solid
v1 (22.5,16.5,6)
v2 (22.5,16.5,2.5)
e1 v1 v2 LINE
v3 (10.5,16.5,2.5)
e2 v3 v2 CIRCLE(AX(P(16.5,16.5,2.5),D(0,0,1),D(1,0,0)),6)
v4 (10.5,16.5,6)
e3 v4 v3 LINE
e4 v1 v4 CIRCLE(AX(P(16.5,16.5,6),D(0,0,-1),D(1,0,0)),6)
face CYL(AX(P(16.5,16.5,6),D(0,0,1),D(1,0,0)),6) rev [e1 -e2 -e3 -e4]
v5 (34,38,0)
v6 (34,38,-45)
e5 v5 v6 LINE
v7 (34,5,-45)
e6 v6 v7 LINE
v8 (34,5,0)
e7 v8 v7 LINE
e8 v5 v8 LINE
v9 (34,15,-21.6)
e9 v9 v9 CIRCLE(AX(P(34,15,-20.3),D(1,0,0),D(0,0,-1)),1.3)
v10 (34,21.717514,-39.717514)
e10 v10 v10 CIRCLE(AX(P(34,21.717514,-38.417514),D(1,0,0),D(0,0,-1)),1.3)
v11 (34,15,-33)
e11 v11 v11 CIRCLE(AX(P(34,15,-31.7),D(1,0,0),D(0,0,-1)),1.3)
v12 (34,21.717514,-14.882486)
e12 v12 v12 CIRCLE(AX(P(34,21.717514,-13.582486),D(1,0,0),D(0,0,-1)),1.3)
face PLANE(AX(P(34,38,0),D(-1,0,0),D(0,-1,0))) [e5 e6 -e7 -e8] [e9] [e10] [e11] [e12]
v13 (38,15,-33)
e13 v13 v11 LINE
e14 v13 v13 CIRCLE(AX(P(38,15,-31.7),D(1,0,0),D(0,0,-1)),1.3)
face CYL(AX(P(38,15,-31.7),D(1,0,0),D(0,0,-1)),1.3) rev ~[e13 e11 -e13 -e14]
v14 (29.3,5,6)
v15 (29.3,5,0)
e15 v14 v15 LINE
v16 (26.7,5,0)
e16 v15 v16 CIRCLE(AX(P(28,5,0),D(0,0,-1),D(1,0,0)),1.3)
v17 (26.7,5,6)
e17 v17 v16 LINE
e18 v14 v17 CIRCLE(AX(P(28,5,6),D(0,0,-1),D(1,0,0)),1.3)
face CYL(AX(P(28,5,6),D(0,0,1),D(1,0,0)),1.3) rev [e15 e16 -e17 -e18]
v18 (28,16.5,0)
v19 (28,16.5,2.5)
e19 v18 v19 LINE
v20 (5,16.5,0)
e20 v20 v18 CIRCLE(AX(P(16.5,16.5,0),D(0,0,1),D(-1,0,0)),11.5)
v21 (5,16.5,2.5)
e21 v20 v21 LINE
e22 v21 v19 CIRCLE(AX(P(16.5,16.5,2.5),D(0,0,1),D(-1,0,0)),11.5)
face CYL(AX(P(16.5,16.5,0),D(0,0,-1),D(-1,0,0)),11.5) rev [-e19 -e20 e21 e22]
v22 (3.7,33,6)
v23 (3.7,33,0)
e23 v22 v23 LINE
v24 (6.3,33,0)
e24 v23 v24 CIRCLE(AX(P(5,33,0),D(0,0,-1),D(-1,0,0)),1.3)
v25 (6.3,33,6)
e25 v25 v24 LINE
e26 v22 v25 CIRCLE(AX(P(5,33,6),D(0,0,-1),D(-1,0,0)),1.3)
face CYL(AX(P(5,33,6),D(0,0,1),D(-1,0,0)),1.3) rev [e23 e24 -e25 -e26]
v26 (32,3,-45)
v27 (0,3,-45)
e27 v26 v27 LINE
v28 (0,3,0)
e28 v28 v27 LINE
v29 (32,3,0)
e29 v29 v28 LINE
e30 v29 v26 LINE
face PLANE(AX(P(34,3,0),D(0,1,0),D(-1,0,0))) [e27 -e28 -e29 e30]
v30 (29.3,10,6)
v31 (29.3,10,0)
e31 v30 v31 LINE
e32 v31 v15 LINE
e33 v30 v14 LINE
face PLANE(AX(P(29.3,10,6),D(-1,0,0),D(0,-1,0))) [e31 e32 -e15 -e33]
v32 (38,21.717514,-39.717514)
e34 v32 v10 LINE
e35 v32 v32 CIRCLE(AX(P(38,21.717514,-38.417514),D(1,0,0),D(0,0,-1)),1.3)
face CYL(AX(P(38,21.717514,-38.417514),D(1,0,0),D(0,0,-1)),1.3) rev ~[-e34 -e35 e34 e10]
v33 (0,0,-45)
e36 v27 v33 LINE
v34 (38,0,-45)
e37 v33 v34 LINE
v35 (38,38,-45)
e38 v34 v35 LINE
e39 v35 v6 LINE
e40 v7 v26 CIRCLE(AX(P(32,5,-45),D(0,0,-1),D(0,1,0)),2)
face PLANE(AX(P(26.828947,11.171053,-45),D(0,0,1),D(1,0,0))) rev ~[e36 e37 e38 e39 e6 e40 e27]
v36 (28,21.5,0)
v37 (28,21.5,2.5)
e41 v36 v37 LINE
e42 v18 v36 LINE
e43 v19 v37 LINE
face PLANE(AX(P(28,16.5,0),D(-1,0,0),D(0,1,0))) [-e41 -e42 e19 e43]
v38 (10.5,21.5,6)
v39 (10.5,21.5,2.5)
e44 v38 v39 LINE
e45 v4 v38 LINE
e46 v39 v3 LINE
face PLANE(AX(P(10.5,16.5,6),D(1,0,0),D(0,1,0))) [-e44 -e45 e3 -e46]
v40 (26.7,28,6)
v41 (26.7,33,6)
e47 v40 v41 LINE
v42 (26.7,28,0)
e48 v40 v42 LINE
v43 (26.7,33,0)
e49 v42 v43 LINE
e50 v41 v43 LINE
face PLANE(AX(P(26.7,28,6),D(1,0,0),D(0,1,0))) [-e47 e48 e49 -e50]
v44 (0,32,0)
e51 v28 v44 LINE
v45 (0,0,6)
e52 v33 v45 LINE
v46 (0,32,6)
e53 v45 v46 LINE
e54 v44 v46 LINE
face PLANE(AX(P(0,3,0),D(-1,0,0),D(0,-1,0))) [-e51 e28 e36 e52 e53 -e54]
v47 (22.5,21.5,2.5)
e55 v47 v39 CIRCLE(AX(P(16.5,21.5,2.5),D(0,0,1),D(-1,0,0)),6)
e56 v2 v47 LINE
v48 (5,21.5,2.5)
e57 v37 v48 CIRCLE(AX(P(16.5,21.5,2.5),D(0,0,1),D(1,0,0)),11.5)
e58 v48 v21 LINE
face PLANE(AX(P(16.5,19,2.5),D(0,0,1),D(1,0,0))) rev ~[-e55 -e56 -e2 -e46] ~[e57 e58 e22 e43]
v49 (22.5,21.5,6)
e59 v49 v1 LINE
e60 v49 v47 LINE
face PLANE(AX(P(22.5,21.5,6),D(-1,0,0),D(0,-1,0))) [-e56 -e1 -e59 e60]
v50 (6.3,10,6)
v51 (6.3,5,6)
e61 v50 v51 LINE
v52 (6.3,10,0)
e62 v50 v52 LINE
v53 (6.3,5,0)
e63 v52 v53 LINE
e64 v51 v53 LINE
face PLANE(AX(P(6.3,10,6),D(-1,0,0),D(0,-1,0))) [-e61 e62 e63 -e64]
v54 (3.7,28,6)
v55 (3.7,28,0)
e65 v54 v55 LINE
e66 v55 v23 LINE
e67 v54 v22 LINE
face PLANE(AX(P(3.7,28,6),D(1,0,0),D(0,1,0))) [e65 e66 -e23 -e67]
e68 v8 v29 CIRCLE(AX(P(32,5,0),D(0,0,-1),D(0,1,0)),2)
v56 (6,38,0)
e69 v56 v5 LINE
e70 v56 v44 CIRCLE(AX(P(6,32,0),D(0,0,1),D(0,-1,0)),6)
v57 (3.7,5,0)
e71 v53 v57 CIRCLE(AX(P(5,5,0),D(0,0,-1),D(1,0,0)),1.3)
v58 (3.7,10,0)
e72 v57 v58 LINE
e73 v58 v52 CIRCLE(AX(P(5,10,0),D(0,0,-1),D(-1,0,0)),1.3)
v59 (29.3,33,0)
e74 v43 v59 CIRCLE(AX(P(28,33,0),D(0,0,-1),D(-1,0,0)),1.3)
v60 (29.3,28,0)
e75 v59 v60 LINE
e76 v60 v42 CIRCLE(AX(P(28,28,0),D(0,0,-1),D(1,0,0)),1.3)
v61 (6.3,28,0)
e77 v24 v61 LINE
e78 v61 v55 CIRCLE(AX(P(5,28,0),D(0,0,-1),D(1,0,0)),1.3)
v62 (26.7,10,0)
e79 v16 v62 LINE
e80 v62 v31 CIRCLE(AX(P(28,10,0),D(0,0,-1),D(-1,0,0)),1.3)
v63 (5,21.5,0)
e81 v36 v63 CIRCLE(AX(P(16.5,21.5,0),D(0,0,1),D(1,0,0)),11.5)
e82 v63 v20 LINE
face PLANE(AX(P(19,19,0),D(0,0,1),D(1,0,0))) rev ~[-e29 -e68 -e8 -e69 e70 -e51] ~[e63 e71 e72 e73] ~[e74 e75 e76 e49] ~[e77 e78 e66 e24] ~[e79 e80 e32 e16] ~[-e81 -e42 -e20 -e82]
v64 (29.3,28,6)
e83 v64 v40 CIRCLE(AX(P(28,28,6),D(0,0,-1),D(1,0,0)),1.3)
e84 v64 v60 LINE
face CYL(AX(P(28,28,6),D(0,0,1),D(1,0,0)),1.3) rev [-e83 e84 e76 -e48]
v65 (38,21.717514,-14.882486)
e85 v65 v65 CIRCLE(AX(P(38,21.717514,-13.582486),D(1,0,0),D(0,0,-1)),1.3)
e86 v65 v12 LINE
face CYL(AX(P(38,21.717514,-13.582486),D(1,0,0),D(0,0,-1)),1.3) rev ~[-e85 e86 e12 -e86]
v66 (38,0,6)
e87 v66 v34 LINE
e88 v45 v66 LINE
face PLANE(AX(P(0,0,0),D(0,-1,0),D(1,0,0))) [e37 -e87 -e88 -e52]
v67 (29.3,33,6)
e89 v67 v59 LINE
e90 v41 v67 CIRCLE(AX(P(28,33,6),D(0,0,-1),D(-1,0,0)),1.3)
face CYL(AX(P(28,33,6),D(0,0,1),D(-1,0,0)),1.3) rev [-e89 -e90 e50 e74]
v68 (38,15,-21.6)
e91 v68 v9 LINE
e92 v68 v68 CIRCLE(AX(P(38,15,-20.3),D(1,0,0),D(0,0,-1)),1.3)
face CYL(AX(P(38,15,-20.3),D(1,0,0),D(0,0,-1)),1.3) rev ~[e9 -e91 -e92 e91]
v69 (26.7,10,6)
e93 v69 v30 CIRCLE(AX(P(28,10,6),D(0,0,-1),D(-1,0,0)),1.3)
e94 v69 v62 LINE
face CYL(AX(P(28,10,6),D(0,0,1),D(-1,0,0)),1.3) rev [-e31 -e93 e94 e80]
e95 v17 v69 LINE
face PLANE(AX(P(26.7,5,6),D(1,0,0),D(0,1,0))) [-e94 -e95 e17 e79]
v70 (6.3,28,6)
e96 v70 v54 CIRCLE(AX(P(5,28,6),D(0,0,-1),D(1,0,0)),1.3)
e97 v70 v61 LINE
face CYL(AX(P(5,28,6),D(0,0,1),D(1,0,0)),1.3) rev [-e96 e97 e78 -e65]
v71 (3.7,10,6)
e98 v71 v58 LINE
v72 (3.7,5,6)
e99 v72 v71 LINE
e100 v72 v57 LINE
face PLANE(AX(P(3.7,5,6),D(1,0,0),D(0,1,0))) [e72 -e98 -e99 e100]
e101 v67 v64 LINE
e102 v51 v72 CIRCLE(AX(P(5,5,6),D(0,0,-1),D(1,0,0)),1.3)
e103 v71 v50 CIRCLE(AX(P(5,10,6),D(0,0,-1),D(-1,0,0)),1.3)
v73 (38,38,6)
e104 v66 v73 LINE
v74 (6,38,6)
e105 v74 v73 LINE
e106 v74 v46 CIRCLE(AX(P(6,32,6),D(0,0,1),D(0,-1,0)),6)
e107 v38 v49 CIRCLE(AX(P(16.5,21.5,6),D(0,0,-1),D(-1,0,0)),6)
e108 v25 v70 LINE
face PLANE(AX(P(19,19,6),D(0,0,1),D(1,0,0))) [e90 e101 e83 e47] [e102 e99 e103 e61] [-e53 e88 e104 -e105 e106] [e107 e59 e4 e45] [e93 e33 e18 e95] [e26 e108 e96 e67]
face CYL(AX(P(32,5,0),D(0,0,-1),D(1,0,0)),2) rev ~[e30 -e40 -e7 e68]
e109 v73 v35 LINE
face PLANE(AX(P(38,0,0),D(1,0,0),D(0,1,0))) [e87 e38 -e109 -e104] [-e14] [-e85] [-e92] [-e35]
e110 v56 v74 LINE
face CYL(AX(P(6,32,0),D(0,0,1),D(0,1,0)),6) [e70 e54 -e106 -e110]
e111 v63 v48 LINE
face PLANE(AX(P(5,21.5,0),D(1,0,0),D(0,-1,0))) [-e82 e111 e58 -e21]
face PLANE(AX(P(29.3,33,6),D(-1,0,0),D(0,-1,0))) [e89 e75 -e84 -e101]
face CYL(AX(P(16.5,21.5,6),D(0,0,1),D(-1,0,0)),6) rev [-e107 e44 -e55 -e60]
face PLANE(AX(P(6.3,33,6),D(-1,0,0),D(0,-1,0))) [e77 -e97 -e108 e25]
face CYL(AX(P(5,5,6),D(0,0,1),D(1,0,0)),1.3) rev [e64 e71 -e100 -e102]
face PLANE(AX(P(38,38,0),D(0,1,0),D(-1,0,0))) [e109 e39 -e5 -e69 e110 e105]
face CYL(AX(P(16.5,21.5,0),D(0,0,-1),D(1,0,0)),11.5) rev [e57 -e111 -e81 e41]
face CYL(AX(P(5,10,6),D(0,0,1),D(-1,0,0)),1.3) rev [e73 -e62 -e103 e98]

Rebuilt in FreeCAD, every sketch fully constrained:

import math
import FreeCAD as App
import Part
import Sketcher


def edges_at(feature, points):
    """Names of the edges that pass closest to the given points."""
    edges = feature.Shape.Edges
    near = lambda p: min(range(len(edges)), key=lambda i: edges[i].distToShape(Part.Vertex(*p))[0])
    return sorted({f"Edge{near(p) + 1}" for p in points})


def add_polygon(sketch, points):
    """Adds a closed chain of lines whose ends are joined by coincident constraints."""
    first, n = sketch.GeometryCount, len(points)
    for a, b in zip(points, points[1:] + points[:1]):
        sketch.addGeometry(Part.LineSegment(App.Vector(*a, 0), App.Vector(*b, 0)), False)
    for i in range(n):
        sketch.addConstraint(Sketcher.Constraint("Coincident", first + i, 2, first + (i + 1) % n, 1))

doc = App.newDocument("Part")
body = doc.addObject("PartDesign::Body", "Body")

# Sketch on XY plane
sketch1 = doc.addObject("Sketcher::SketchObject", "Sketch")
body.addObject(sketch1)
sketch1.AttachmentSupport = (doc.XY_Plane, [""])
sketch1.MapMode = "FlatFace"
add_polygon(sketch1, [(0, 38), (0, 0), (38, 0), (38, 38)])  # lines 0-3
sketch1.addConstraint(Sketcher.Constraint("Vertical", 0))
sketch1.addConstraint(Sketcher.Constraint("Horizontal", 1))
sketch1.addConstraint(Sketcher.Constraint("Vertical", 2))
sketch1.addConstraint(Sketcher.Constraint("Horizontal", 3))
sketch1.addConstraint(Sketcher.Constraint("Coincident", 0, 2, -1, 1))
sketch1.addConstraint(Sketcher.Constraint("Equal", 3, 0))
sketch1.addConstraint(Sketcher.Constraint("DistanceX", 1, 1, 1, 2, 38.0))
pad1 = doc.addObject("PartDesign::Pad", "Pad")
body.addObject(pad1)
pad1.Profile = sketch1
pad1.Length = 6

# Sketch on XY plane
sketch2 = doc.addObject("Sketcher::SketchObject", "Sketch001")
body.addObject(sketch2)
sketch2.AttachmentSupport = (doc.XY_Plane, [""])
sketch2.MapMode = "FlatFace"
add_polygon(sketch2, [(34, 3), (34, 38), (38, 38), (38, 0), (0, 0), (0, 3)])  # lines 0-5
sketch2.addConstraint(Sketcher.Constraint("Vertical", 0))
sketch2.addConstraint(Sketcher.Constraint("Horizontal", 1))
sketch2.addConstraint(Sketcher.Constraint("Vertical", 2))
sketch2.addConstraint(Sketcher.Constraint("Horizontal", 3))
sketch2.addConstraint(Sketcher.Constraint("Vertical", 4))
sketch2.addConstraint(Sketcher.Constraint("Horizontal", 5))
sketch2.addConstraint(Sketcher.Constraint("Coincident", 3, 2, -1, 1))
sketch2.addConstraint(Sketcher.Constraint("Equal", 3, 2))
sketch2.addConstraint(Sketcher.Constraint("DistanceX", 1, 1, 1, 2, 4.0))
sketch2.addConstraint(Sketcher.Constraint("DistanceX", 3, 2, 3, 1, 38.0))
sketch2.addConstraint(Sketcher.Constraint("DistanceY", 0, 1, 0, 2, 35.0))
pad2 = doc.addObject("PartDesign::Pad", "Pad001")
body.addObject(pad2)
pad2.Profile = sketch2
pad2.Length = 45
pad2.Reversed = True

# Sketch on XY plane
sketch3 = doc.addObject("Sketcher::SketchObject", "Sketch002")
body.addObject(sketch3)
sketch3.AttachmentSupport = (doc.XY_Plane, [""])
sketch3.MapMode = "FlatFace"
sketch3.AttachmentOffset = App.Placement(App.Vector(0, 0, 6), App.Rotation())
sketch3.addGeometry(Part.LineSegment(App.Vector(6.3, 28, 0), App.Vector(6.3, 33, 0)), False)
sketch3.addGeometry(Part.ArcOfCircle(Part.Circle(App.Vector(5, 33, 0), App.Vector(0, 0, 1), 1.3), math.radians(0), math.radians(180)), False)
sketch3.addGeometry(Part.LineSegment(App.Vector(3.7, 33, 0), App.Vector(3.7, 28, 0)), False)
sketch3.addGeometry(Part.ArcOfCircle(Part.Circle(App.Vector(5, 28, 0), App.Vector(0, 0, 1), 1.3), math.radians(180), math.radians(360)), False)
sketch3.addGeometry(Part.LineSegment(App.Vector(29.3, 28, 0), App.Vector(29.3, 33, 0)), False)
sketch3.addGeometry(Part.ArcOfCircle(Part.Circle(App.Vector(28, 33, 0), App.Vector(0, 0, 1), 1.3), math.radians(0), math.radians(180)), False)
sketch3.addGeometry(Part.LineSegment(App.Vector(26.7, 33, 0), App.Vector(26.7, 28, 0)), False)
sketch3.addGeometry(Part.ArcOfCircle(Part.Circle(App.Vector(28, 28, 0), App.Vector(0, 0, 1), 1.3), math.radians(180), math.radians(360)), False)
sketch3.addGeometry(Part.LineSegment(App.Vector(6.3, 5, 0), App.Vector(6.3, 10, 0)), False)
sketch3.addGeometry(Part.ArcOfCircle(Part.Circle(App.Vector(5, 10, 0), App.Vector(0, 0, 1), 1.3), math.radians(0), math.radians(180)), False)
sketch3.addGeometry(Part.LineSegment(App.Vector(3.7, 10, 0), App.Vector(3.7, 5, 0)), False)
sketch3.addGeometry(Part.ArcOfCircle(Part.Circle(App.Vector(5, 5, 0), App.Vector(0, 0, 1), 1.3), math.radians(180), math.radians(360)), False)
sketch3.addGeometry(Part.LineSegment(App.Vector(29.3, 5, 0), App.Vector(29.3, 10, 0)), False)
sketch3.addGeometry(Part.ArcOfCircle(Part.Circle(App.Vector(28, 10, 0), App.Vector(0, 0, 1), 1.3), math.radians(0), math.radians(180)), False)
sketch3.addGeometry(Part.LineSegment(App.Vector(26.7, 10, 0), App.Vector(26.7, 5, 0)), False)
sketch3.addGeometry(Part.ArcOfCircle(Part.Circle(App.Vector(28, 5, 0), App.Vector(0, 0, 1), 1.3), math.radians(180), math.radians(360)), False)
sketch3.addGeometry(Part.LineSegment(App.Vector(22.5, 16.5, 0), App.Vector(22.5, 21.5, 0)), False)
sketch3.addGeometry(Part.ArcOfCircle(Part.Circle(App.Vector(16.5, 21.5, 0), App.Vector(0, 0, 1), 6), math.radians(0), math.radians(180)), False)
sketch3.addGeometry(Part.LineSegment(App.Vector(10.5, 21.5, 0), App.Vector(10.5, 16.5, 0)), False)
sketch3.addGeometry(Part.ArcOfCircle(Part.Circle(App.Vector(16.5, 16.5, 0), App.Vector(0, 0, 1), 6), math.radians(180), math.radians(360)), False)
sketch3.addConstraint(Sketcher.Constraint("Tangent", 0, 2, 1, 1))
sketch3.addConstraint(Sketcher.Constraint("Tangent", 1, 2, 2, 1))
sketch3.addConstraint(Sketcher.Constraint("Tangent", 2, 2, 3, 1))
sketch3.addConstraint(Sketcher.Constraint("Tangent", 3, 2, 0, 1))
sketch3.addConstraint(Sketcher.Constraint("Tangent", 4, 2, 5, 1))
sketch3.addConstraint(Sketcher.Constraint("Tangent", 5, 2, 6, 1))
sketch3.addConstraint(Sketcher.Constraint("Tangent", 6, 2, 7, 1))
sketch3.addConstraint(Sketcher.Constraint("Tangent", 7, 2, 4, 1))
sketch3.addConstraint(Sketcher.Constraint("Tangent", 8, 2, 9, 1))
sketch3.addConstraint(Sketcher.Constraint("Tangent", 9, 2, 10, 1))
sketch3.addConstraint(Sketcher.Constraint("Tangent", 10, 2, 11, 1))
sketch3.addConstraint(Sketcher.Constraint("Tangent", 11, 2, 8, 1))
sketch3.addConstraint(Sketcher.Constraint("Tangent", 12, 2, 13, 1))
sketch3.addConstraint(Sketcher.Constraint("Tangent", 13, 2, 14, 1))
sketch3.addConstraint(Sketcher.Constraint("Tangent", 14, 2, 15, 1))
sketch3.addConstraint(Sketcher.Constraint("Tangent", 15, 2, 12, 1))
sketch3.addConstraint(Sketcher.Constraint("Tangent", 16, 2, 17, 1))
sketch3.addConstraint(Sketcher.Constraint("Tangent", 17, 2, 18, 1))
sketch3.addConstraint(Sketcher.Constraint("Tangent", 18, 2, 19, 1))
sketch3.addConstraint(Sketcher.Constraint("Tangent", 19, 2, 16, 1))
sketch3.addConstraint(Sketcher.Constraint("Vertical", 0))
sketch3.addConstraint(Sketcher.Constraint("Vertical", 2))
sketch3.addConstraint(Sketcher.Constraint("Vertical", 4))
sketch3.addConstraint(Sketcher.Constraint("Vertical", 6))
sketch3.addConstraint(Sketcher.Constraint("Vertical", 8))
sketch3.addConstraint(Sketcher.Constraint("Vertical", 10))
sketch3.addConstraint(Sketcher.Constraint("Vertical", 12))
sketch3.addConstraint(Sketcher.Constraint("Vertical", 14))
sketch3.addConstraint(Sketcher.Constraint("Vertical", 16))
sketch3.addConstraint(Sketcher.Constraint("Vertical", 18))
sketch3.addConstraint(Sketcher.Constraint("Equal", 3, 5))
sketch3.addConstraint(Sketcher.Constraint("Equal", 7, 9))
sketch3.addConstraint(Sketcher.Constraint("Equal", 11, 13))
sketch3.addConstraint(Sketcher.Constraint("Horizontal", 1, 3, 5, 3))
sketch3.addConstraint(Sketcher.Constraint("Horizontal", 3, 3, 7, 3))
sketch3.addConstraint(Sketcher.Constraint("Horizontal", 9, 3, 13, 3))
sketch3.addConstraint(Sketcher.Constraint("Horizontal", 11, 3, 15, 3))
sketch3.addConstraint(Sketcher.Constraint("Vertical", 3, 3, 9, 3))
sketch3.addConstraint(Sketcher.Constraint("Vertical", 7, 3, 13, 3))
sketch3.addConstraint(Sketcher.Constraint("Equal", 6, 8))
sketch3.addConstraint(Sketcher.Constraint("Equal", 14, 16))
sketch3.addConstraint(Sketcher.Constraint("Radius", 17, 6.0))
sketch3.addConstraint(Sketcher.Constraint("Radius", 1, 1.3))
sketch3.addConstraint(Sketcher.Constraint("DistanceY", 0, 1, 0, 2, 5.0))
sketch3.addConstraint(Sketcher.Constraint("DistanceX", -1, 1, 1, 3, 5.0))
sketch3.addConstraint(Sketcher.Constraint("DistanceY", -1, 1, 1, 3, 33.0))
sketch3.addConstraint(Sketcher.Constraint("DistanceX", -1, 1, 5, 3, 28.0))
sketch3.addConstraint(Sketcher.Constraint("DistanceY", -1, 1, 9, 3, 10.0))
sketch3.addConstraint(Sketcher.Constraint("DistanceX", -1, 1, 17, 3, 16.5))
sketch3.addConstraint(Sketcher.Constraint("DistanceY", -1, 1, 17, 3, 21.5))
pocket1 = doc.addObject("PartDesign::Pocket", "Pocket")
body.addObject(pocket1)
pocket1.Profile = sketch3
pocket1.Length = 6

# Sketch on XY plane
sketch4 = doc.addObject("Sketcher::SketchObject", "Sketch003")
body.addObject(sketch4)
sketch4.AttachmentSupport = (doc.XY_Plane, [""])
sketch4.MapMode = "FlatFace"
sketch4.addGeometry(Part.LineSegment(App.Vector(5, 16.5, 0), App.Vector(5, 21.5, 0)), False)
sketch4.addGeometry(Part.ArcOfCircle(Part.Circle(App.Vector(16.5, 21.5, 0), App.Vector(0, 0, 1), 11.5), math.radians(0), math.radians(180)), False)
sketch4.addGeometry(Part.LineSegment(App.Vector(28, 21.5, 0), App.Vector(28, 16.5, 0)), False)
sketch4.addGeometry(Part.ArcOfCircle(Part.Circle(App.Vector(16.5, 16.5, 0), App.Vector(0, 0, 1), 11.5), math.radians(180), math.radians(360)), False)
sketch4.addConstraint(Sketcher.Constraint("Tangent", 0, 2, 1, 2))
sketch4.addConstraint(Sketcher.Constraint("Tangent", 1, 1, 2, 1))
sketch4.addConstraint(Sketcher.Constraint("Tangent", 2, 2, 3, 2))
sketch4.addConstraint(Sketcher.Constraint("Tangent", 3, 1, 0, 1))
sketch4.addConstraint(Sketcher.Constraint("Vertical", 0))
sketch4.addConstraint(Sketcher.Constraint("Vertical", 2))
sketch4.addConstraint(Sketcher.Constraint("Radius", 1, 11.5))
sketch4.addConstraint(Sketcher.Constraint("DistanceY", 0, 1, 0, 2, 5.0))
sketch4.addConstraint(Sketcher.Constraint("DistanceX", -1, 1, 0, 2, 5.0))
sketch4.addConstraint(Sketcher.Constraint("DistanceY", -1, 1, 1, 3, 21.5))
pocket2 = doc.addObject("PartDesign::Pocket", "Pocket001")
body.addObject(pocket2)
pocket2.Profile = sketch4
pocket2.Length = 2.5
pocket2.Reversed = True

# Sketch on YZ plane
sketch5 = doc.addObject("Sketcher::SketchObject", "Sketch004")
body.addObject(sketch5)
sketch5.AttachmentSupport = (doc.YZ_Plane, [""])
sketch5.MapMode = "FlatFace"
sketch5.AttachmentOffset = App.Placement(App.Vector(0, 0, 38), App.Rotation())
sketch5.addGeometry(Part.Circle(App.Vector(21.717514, -13.582486, 0), App.Vector(0, 0, 1), 1.3), False)
sketch5.addGeometry(Part.Circle(App.Vector(15, -20.3, 0), App.Vector(0, 0, 1), 1.3), False)
sketch5.addGeometry(Part.Circle(App.Vector(21.717514, -38.417514, 0), App.Vector(0, 0, 1), 1.3), False)
sketch5.addGeometry(Part.Circle(App.Vector(15, -31.7, 0), App.Vector(0, 0, 1), 1.3), False)
sketch5.addConstraint(Sketcher.Constraint("Equal", 0, 1))
sketch5.addConstraint(Sketcher.Constraint("Equal", 1, 2))
sketch5.addConstraint(Sketcher.Constraint("Equal", 2, 3))
sketch5.addConstraint(Sketcher.Constraint("Vertical", 0, 3, 2, 3))
sketch5.addConstraint(Sketcher.Constraint("Vertical", 1, 3, 3, 3))
sketch5.addConstraint(Sketcher.Constraint("Diameter", 0, 2.6))
sketch5.addConstraint(Sketcher.Constraint("DistanceX", -1, 1, 1, 3, 15.0))
sketch5.addConstraint(Sketcher.Constraint("DistanceY", 1, 3, -1, 1, 20.3))
sketch5.addConstraint(Sketcher.Constraint("DistanceY", 3, 3, -1, 1, 31.7))
sketch5.addConstraint(Sketcher.Constraint("DistanceY", 2, 3, 0, 3, 24.835029))
sketch5.addConstraint(Sketcher.Constraint("DistanceX", -1, 1, 0, 3, 21.717514))
sketch5.addConstraint(Sketcher.Constraint("DistanceY", 0, 3, -1, 1, 13.582486))
pocket3 = doc.addObject("PartDesign::Pocket", "Pocket002")
body.addObject(pocket3)
pocket3.Profile = sketch5
pocket3.Length = 4
doc.recompute()

fillet = doc.addObject("PartDesign::Fillet", "Fillet")
body.addObject(fillet)
fillet.Base = (pocket3, edges_at(pocket3, [(34, 3, -22.5)]))
fillet.Radius = 2
doc.recompute()

fillet2 = doc.addObject("PartDesign::Fillet", "Fillet001")
body.addObject(fillet2)
fillet2.Base = (fillet, edges_at(fillet, [(0, 38, 3)]))
fillet2.Radius = 6

doc.recompute()
